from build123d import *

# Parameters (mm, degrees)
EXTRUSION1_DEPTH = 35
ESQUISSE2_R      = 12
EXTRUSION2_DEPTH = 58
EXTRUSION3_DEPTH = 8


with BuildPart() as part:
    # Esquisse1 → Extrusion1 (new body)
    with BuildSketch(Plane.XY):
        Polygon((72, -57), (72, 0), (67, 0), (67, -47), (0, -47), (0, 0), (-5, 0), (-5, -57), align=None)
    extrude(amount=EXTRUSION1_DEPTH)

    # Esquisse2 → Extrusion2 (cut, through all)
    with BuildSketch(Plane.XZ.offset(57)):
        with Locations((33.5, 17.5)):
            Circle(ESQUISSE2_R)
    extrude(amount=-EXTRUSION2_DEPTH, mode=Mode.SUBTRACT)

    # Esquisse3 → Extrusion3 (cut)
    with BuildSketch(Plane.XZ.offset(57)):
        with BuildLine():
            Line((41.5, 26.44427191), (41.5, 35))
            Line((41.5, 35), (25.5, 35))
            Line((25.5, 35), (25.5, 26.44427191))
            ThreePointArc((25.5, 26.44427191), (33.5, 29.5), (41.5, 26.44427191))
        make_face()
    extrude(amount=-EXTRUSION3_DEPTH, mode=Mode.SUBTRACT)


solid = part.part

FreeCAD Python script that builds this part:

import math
import FreeCAD as App
import Part
import Sketcher
Q = App.Units.Quantity

doc = App.newDocument("Part")
body = doc.addObject("PartDesign::Body", "Body")

sketch1 = doc.addObject("Sketcher::SketchObject", "Sketch")
body.addObject(sketch1)
sketch1.AttachmentSupport = (doc.XY_Plane, [""])
sketch1.MapMode = "FlatFace"
sketch1.addGeometry([
    Part.LineSegment(App.Vector(72, -57, 0), App.Vector(72, 0, 0)),
    Part.LineSegment(App.Vector(72, 0, 0), App.Vector(67, 0, 0)),
    Part.LineSegment(App.Vector(67, 0, 0), App.Vector(67, -47, 0)),
    Part.LineSegment(App.Vector(67, -47, 0), App.Vector(0, -47, 0)),
    Part.LineSegment(App.Vector(0, -47, 0), App.Vector(0, 0, 0)),
    Part.LineSegment(App.Vector(0, 0, 0), App.Vector(-5, 0, 0)),
    Part.LineSegment(App.Vector(-5, 0, 0), App.Vector(-5, -57, 0)),
    Part.LineSegment(App.Vector(-5, -57, 0), App.Vector(72, -57, 0)),
], False)
sketch1.addConstraint([
    Sketcher.Constraint("Coincident", 0, 2, 1, 1),
    Sketcher.Constraint("Coincident", 1, 2, 2, 1),
    Sketcher.Constraint("Coincident", 2, 2, 3, 1),
    Sketcher.Constraint("Coincident", 3, 2, 4, 1),
    Sketcher.Constraint("Coincident", 4, 2, 5, 1),
    Sketcher.Constraint("Coincident", 5, 2, 6, 1),
    Sketcher.Constraint("Coincident", 6, 2, 7, 1),
    Sketcher.Constraint("Coincident", 7, 2, 0, 1),
    Sketcher.Constraint("Vertical", 0),
    Sketcher.Constraint("Horizontal", 1),
    Sketcher.Constraint("Vertical", 2),
    Sketcher.Constraint("Horizontal", 3),
    Sketcher.Constraint("Vertical", 4),
    Sketcher.Constraint("Horizontal", 5),
    Sketcher.Constraint("Vertical", 6),
    Sketcher.Constraint("Horizontal", 7),
    Sketcher.Constraint("Coincident", 4, 2, -1, 1),
    Sketcher.Constraint("PointOnObject", 0, 2, -1),
    Sketcher.Constraint("Equal", 1, 5),
    Sketcher.Constraint("DistanceX", 1, 2, 1, 1, Q("5 mm")),
    Sketcher.Constraint("DistanceX", 3, 2, 3, 1, Q("67 mm")),
    Sketcher.Constraint("DistanceY", 0, 1, 0, 2, Q("57 mm")),
    Sketcher.Constraint("DistanceY", 2, 2, 2, 1, Q("47 mm")),
])
pad1 = doc.addObject("PartDesign::Pad", "Pad")
body.addObject(pad1)
pad1.Profile = sketch1
pad1.Length = 35

sketch2 = doc.addObject("Sketcher::SketchObject", "Sketch001")
body.addObject(sketch2)
sketch2.AttachmentSupport = (doc.XZ_Plane, [""])
sketch2.MapMode = "FlatFace"
sketch2.AttachmentOffset = App.Placement(App.Vector(0, 0, 57), App.Rotation())
sketch2.addGeometry(Part.Circle(App.Vector(34, 18, 0), App.Vector(0, 0, 1), 12), False)
sketch2.addConstraint([
    Sketcher.Constraint("Diameter", 0, Q("24 mm")),
    Sketcher.Constraint("DistanceX", -1, 1, 0, 3, Q("33.5 mm")),
    Sketcher.Constraint("DistanceY", -1, 1, 0, 3, Q("17.5 mm")),
])
pocket1 = doc.addObject("PartDesign::Pocket", "Pocket")
body.addObject(pocket1)
pocket1.Profile = sketch2
pocket1.Type = "ThroughAll"

sketch3 = doc.addObject("Sketcher::SketchObject", "Sketch002")
body.addObject(sketch3)
sketch3.AttachmentSupport = (doc.XZ_Plane, [""])
sketch3.MapMode = "FlatFace"
sketch3.AttachmentOffset = App.Placement(App.Vector(0, 0, 57), App.Rotation())
sketch3.addGeometry([
    Part.LineSegment(App.Vector(42, 26, 0), App.Vector(42, 35, 0)),
    Part.LineSegment(App.Vector(42, 35, 0), App.Vector(26, 35, 0)),
    Part.LineSegment(App.Vector(26, 35, 0), App.Vector(26, 26, 0)),
    Part.ArcOfCircle(Part.Circle(App.Vector(34, 18, 0), App.Vector(0, 0, 1), 12), math.radians(48), math.radians(132)),
], False)
sketch3.addConstraint([
    Sketcher.Constraint("Coincident", 0, 2, 1, 1),
    Sketcher.Constraint("Coincident", 1, 2, 2, 1),
    Sketcher.Constraint("Coincident", 2, 2, 3, 2),
    Sketcher.Constraint("Coincident", 3, 1, 0, 1),
    Sketcher.Constraint("Vertical", 0),
    Sketcher.Constraint("Horizontal", 1),
    Sketcher.Constraint("Vertical", 2),
    Sketcher.Constraint("Horizontal", 2, 2, 3, 1),
    Sketcher.Constraint("Radius", 3, Q("12 mm")),
    Sketcher.Constraint("DistanceX", 1, 2, 1, 1, Q("16 mm")),
    Sketcher.Constraint("DistanceY", -1, 1, 0, 2, Q("35 mm")),
    Sketcher.Constraint("DistanceX", -1, 1, 3, 3, Q("33.5 mm")),
    Sketcher.Constraint("DistanceY", -1, 1, 3, 3, Q("17.5 mm")),
])
pocket2 = doc.addObject("PartDesign::Pocket", "Pocket001")
body.addObject(pocket2)
pocket2.Profile = sketch3
pocket2.Length = 8

doc.recompute()
